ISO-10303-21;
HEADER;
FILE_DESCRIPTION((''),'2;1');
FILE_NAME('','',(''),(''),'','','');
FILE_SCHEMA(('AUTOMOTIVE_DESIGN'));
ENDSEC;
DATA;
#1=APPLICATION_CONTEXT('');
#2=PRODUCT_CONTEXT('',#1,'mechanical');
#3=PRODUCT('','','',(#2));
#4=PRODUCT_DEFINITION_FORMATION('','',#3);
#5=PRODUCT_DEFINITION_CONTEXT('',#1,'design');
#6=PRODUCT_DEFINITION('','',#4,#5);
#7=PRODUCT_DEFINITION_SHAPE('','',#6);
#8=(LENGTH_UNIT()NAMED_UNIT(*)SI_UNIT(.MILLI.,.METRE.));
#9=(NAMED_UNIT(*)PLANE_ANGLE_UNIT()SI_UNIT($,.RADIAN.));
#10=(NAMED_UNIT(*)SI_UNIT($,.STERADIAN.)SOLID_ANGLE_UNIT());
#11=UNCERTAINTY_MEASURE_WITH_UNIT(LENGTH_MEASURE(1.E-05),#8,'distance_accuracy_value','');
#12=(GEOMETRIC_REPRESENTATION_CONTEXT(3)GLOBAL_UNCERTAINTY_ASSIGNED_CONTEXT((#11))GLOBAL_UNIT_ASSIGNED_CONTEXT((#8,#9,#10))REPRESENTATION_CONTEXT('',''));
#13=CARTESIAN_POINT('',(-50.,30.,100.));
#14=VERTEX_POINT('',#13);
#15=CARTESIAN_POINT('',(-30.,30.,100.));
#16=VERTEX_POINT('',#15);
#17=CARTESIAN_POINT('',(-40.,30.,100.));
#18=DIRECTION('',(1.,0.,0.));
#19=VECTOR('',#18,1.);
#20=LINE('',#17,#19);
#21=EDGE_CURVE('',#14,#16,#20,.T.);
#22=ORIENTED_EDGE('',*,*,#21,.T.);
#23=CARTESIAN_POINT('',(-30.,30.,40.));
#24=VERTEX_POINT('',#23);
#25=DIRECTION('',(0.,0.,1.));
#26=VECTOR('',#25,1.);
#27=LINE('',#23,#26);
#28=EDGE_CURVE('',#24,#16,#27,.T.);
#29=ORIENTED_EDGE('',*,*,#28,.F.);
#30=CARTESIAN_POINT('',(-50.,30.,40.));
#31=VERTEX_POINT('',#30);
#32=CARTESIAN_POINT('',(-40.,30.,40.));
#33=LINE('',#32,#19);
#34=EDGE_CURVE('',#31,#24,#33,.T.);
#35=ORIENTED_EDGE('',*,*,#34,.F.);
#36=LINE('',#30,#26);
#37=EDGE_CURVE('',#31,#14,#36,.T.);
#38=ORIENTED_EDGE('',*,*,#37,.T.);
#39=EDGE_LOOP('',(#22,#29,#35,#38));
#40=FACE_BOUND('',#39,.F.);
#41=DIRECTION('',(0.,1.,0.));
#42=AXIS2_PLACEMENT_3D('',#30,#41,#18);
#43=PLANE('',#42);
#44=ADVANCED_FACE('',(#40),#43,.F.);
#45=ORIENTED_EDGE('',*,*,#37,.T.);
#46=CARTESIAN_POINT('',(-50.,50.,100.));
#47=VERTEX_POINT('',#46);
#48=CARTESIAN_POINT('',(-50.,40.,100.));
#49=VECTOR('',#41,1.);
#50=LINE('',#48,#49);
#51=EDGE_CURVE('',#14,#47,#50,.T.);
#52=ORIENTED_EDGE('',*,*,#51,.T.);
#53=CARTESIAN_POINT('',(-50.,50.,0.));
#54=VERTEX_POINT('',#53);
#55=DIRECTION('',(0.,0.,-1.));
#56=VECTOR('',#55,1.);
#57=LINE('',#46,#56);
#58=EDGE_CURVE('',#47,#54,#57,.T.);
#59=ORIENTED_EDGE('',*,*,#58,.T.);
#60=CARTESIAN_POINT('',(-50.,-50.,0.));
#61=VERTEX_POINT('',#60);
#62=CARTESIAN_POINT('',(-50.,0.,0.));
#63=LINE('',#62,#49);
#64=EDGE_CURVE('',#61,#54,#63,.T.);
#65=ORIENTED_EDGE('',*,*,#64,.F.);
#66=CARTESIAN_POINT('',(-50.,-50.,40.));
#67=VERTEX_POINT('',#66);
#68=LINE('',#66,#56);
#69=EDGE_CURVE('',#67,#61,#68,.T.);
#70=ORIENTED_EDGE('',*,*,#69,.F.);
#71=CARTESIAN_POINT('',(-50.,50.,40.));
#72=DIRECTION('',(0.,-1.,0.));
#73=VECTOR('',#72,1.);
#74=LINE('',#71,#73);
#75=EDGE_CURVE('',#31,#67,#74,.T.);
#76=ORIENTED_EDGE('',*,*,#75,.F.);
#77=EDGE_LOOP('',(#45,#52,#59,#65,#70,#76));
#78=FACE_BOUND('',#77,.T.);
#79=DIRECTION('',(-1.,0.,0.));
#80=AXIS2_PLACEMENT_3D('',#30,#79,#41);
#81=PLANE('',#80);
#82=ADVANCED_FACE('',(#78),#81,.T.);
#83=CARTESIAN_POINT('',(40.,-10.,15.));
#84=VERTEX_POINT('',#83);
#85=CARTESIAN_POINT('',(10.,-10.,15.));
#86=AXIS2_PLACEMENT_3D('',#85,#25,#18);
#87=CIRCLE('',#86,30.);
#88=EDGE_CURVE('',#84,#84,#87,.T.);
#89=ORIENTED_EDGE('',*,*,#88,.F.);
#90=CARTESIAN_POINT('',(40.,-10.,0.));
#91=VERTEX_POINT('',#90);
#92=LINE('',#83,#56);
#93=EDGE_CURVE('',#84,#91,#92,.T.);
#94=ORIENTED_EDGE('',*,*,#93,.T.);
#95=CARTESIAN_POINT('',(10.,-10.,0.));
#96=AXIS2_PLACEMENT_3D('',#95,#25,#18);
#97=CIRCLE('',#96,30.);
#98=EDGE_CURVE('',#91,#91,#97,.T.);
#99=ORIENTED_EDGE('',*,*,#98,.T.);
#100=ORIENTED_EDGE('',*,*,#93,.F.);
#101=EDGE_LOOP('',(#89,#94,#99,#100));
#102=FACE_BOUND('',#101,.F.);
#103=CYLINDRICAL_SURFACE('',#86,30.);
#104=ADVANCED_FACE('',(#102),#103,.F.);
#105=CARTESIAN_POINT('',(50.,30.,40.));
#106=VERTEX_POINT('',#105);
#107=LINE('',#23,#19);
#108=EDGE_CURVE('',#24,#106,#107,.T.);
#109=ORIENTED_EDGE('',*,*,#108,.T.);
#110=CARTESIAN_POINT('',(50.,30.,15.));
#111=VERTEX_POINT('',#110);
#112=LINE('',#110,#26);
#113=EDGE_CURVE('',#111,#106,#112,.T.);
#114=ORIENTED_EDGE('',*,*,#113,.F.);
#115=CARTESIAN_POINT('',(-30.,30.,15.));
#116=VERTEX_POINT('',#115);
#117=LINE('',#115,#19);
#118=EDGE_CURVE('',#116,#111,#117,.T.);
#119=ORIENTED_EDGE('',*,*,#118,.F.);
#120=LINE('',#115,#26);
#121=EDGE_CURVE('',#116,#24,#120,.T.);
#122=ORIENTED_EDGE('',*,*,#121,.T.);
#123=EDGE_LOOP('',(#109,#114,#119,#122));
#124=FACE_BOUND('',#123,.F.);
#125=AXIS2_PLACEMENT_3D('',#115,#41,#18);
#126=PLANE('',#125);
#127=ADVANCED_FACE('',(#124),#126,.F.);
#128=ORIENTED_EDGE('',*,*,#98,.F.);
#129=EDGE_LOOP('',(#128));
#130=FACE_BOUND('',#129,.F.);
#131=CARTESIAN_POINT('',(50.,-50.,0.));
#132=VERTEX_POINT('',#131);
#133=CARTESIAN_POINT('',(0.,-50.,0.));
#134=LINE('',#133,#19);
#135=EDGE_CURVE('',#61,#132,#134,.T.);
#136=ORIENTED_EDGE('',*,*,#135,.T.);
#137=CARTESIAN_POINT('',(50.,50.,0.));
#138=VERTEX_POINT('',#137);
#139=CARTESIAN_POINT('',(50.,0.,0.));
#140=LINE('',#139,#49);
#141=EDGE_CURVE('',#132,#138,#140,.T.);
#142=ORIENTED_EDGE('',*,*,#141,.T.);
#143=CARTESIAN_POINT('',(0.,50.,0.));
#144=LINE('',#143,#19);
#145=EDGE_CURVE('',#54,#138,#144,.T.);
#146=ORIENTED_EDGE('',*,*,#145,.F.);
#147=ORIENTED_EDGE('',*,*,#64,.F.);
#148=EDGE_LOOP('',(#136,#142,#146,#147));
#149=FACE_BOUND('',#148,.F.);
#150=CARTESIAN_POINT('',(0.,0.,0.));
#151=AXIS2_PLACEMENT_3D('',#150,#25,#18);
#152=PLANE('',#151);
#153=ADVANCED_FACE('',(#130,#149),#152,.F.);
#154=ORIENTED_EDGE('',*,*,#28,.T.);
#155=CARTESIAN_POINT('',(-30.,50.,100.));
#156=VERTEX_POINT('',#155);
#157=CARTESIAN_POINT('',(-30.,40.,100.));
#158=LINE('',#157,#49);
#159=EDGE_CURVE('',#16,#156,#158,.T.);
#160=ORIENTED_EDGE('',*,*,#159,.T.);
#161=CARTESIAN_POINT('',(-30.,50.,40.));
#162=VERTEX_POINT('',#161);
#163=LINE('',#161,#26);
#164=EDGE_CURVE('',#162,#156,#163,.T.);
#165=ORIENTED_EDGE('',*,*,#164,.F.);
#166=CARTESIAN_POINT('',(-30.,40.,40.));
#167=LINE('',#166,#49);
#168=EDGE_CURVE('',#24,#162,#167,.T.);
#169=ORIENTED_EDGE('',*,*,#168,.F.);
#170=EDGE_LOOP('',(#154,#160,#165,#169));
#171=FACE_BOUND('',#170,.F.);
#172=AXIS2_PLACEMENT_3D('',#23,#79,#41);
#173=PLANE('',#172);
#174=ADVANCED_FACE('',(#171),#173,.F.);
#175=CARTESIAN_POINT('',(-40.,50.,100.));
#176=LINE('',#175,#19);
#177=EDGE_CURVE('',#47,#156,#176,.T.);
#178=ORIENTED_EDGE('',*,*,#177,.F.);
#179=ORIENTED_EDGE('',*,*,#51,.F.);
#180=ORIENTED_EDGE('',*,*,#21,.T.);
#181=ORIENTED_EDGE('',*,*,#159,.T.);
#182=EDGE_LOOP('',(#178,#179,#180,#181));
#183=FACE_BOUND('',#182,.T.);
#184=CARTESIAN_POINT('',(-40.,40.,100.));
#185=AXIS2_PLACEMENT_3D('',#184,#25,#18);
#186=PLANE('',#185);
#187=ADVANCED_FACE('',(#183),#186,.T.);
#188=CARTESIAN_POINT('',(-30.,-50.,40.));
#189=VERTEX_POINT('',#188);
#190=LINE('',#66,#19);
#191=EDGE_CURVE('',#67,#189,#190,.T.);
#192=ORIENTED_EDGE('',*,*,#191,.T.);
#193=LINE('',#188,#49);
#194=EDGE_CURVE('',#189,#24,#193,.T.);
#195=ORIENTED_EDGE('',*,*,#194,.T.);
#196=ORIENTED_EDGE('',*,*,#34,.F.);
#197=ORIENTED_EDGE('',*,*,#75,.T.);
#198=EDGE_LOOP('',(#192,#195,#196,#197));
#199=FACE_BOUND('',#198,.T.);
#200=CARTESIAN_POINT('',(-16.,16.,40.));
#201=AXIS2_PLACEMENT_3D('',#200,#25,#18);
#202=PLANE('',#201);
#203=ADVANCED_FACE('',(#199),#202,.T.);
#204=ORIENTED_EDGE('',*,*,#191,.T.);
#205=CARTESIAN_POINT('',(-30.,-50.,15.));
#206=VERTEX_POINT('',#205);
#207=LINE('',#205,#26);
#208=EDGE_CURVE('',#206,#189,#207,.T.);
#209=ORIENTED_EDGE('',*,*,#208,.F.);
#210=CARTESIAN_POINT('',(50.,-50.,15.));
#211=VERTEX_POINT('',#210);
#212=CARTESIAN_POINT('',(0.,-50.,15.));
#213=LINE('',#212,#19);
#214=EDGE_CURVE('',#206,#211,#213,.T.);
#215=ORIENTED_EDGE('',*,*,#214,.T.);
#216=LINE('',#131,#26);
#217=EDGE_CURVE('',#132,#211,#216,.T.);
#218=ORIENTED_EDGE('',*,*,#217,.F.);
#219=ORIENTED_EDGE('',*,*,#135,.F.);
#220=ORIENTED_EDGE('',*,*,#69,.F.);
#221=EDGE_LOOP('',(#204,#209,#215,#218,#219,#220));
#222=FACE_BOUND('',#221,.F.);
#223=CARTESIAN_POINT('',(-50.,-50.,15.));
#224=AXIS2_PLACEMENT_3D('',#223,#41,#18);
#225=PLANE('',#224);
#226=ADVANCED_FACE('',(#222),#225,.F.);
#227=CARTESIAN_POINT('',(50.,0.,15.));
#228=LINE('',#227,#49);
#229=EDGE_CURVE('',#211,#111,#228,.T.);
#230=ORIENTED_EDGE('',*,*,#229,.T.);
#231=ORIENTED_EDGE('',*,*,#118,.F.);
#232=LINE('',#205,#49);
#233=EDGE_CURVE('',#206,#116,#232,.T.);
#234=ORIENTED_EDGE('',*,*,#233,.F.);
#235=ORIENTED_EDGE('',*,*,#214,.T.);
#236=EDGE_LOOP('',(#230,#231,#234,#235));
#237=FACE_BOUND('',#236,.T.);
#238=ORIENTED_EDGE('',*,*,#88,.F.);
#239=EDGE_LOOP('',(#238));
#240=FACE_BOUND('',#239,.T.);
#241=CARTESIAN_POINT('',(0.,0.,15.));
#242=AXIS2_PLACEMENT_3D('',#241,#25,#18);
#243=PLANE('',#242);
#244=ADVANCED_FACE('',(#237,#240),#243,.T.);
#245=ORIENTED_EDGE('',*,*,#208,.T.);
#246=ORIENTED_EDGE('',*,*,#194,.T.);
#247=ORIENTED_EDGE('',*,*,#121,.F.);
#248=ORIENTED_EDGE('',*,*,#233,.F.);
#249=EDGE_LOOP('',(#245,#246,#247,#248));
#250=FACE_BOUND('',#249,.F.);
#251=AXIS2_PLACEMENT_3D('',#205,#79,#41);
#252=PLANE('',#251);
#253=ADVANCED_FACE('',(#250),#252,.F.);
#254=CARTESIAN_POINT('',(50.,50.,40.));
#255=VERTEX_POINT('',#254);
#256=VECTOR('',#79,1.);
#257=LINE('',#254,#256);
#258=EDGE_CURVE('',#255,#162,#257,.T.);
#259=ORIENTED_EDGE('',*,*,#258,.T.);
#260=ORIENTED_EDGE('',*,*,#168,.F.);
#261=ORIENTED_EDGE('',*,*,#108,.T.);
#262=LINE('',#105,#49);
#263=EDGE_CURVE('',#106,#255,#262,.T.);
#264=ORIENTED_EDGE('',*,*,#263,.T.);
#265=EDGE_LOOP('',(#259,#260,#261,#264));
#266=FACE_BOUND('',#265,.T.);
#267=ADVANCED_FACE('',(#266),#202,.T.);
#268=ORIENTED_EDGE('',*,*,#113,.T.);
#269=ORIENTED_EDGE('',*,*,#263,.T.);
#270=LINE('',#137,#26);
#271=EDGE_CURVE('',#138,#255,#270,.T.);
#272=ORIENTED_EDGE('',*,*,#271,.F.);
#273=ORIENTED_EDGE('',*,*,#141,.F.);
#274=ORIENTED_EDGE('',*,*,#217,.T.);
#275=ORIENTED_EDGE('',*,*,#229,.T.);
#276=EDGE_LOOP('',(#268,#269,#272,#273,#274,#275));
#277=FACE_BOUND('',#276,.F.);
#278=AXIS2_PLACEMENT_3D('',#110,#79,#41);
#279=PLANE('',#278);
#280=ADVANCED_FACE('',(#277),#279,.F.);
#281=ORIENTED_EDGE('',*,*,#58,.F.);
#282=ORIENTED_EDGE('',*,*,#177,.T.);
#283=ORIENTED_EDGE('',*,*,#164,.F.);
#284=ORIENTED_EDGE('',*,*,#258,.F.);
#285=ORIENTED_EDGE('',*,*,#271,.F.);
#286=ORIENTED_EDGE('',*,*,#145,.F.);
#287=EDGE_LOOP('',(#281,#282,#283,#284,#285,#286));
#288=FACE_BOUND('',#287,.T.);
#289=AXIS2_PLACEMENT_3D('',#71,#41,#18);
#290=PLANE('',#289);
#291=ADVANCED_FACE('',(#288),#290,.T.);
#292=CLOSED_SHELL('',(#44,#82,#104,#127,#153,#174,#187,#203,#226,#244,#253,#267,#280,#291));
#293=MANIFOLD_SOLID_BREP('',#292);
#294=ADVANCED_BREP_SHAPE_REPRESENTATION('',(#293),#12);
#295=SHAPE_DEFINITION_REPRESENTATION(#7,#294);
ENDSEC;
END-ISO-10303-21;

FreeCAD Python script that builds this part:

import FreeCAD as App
import Part
import Sketcher

V = App.Vector
Q = App.Units.Quantity

doc = App.newDocument("Part")
body = doc.addObject("PartDesign::Body", "Body")

sketch1 = body.newObject("Sketcher::SketchObject", "Sketch")
sketch1.AttachmentSupport = (doc.getObject("XY_Plane"), [""])
sketch1.MapMode = "FlatFace"
sketch1.addGeometry(Part.LineSegment(V(-50, 50, 0), V(-50, -50, 0)), False)
sketch1.addGeometry(Part.LineSegment(V(-50, -50, 0), V(50, -50, 0)), False)
sketch1.addGeometry(Part.LineSegment(V(50, -50, 0), V(50, 50, 0)), False)
sketch1.addGeometry(Part.LineSegment(V(50, 50, 0), V(-50, 50, 0)), False)
sketch1.addConstraint(Sketcher.Constraint("Coincident", 0, 2, 1, 1))
sketch1.addConstraint(Sketcher.Constraint("Coincident", 1, 2, 2, 1))
sketch1.addConstraint(Sketcher.Constraint("Coincident", 2, 2, 3, 1))
sketch1.addConstraint(Sketcher.Constraint("Coincident", 3, 2, 0, 1))
sketch1.addConstraint(Sketcher.Constraint("Vertical", 0))
sketch1.addConstraint(Sketcher.Constraint("Horizontal", 1))
sketch1.addConstraint(Sketcher.Constraint("Vertical", 2))
sketch1.addConstraint(Sketcher.Constraint("Horizontal", 3))
sketch1.addConstraint(Sketcher.Constraint("Symmetric", 0, 2, 2, 2, -1, 1))
sketch1.addConstraint(Sketcher.Constraint("Equal", 3, 0))
sketch1.addConstraint(Sketcher.Constraint("DistanceX", 1, 1, 1, 2, Q("100 mm")))
pad1 = body.newObject("PartDesign::Pad", "Pad")
pad1.Profile = sketch1
pad1.Length = 15

sketch2 = body.newObject("Sketcher::SketchObject", "Sketch001")
sketch2.AttachmentSupport = (doc.getObject("XY_Plane"), [""])
sketch2.MapMode = "FlatFace"
sketch2.AttachmentOffset = App.Placement(V(0, 0, 15), App.Rotation())
sketch2.addGeometry(Part.LineSegment(V(-30, 30, 0), V(50, 30, 0)), False)
sketch2.addGeometry(Part.LineSegment(V(50, 30, 0), V(50, 50, 0)), False)
sketch2.addGeometry(Part.LineSegment(V(50, 50, 0), V(-50, 50, 0)), False)
sketch2.addGeometry(Part.LineSegment(V(-50, 50, 0), V(-50, -50, 0)), False)
sketch2.addGeometry(Part.LineSegment(V(-50, -50, 0), V(-30, -50, 0)), False)
sketch2.addGeometry(Part.LineSegment(V(-30, -50, 0), V(-30, 30, 0)), False)
sketch2.addConstraint(Sketcher.Constraint("Coincident", 0, 2, 1, 1))
sketch2.addConstraint(Sketcher.Constraint("Coincident", 1, 2, 2, 1))
sketch2.addConstraint(Sketcher.Constraint("Coincident", 2, 2, 3, 1))
sketch2.addConstraint(Sketcher.Constraint("Coincident", 3, 2, 4, 1))
sketch2.addConstraint(Sketcher.Constraint("Coincident", 4, 2, 5, 1))
sketch2.addConstraint(Sketcher.Constraint("Coincident", 5, 2, 0, 1))
sketch2.addConstraint(Sketcher.Constraint("Horizontal", 0))
sketch2.addConstraint(Sketcher.Constraint("Vertical", 1))
sketch2.addConstraint(Sketcher.Constraint("Horizontal", 2))
sketch2.addConstraint(Sketcher.Constraint("Vertical", 3))
sketch2.addConstraint(Sketcher.Constraint("Horizontal", 4))
sketch2.addConstraint(Sketcher.Constraint("Vertical", 5))
sketch2.addConstraint(Sketcher.Constraint("Symmetric", 1, 2, 3, 2, -1, 1))
sketch2.addConstraint(Sketcher.Constraint("Equal", 4, 1))
sketch2.addConstraint(Sketcher.Constraint("Equal", 2, 3))
sketch2.addConstraint(Sketcher.Constraint("DistanceX", 0, 1, 0, 2, Q("80 mm")))
sketch2.addConstraint(Sketcher.Constraint("DistanceX", 2, 2, 2, 1, Q("100 mm")))
pad2 = body.newObject("PartDesign::Pad", "Pad001")
pad2.Profile = sketch2
pad2.Length = 25

sketch3 = body.newObject("Sketcher::SketchObject", "Sketch002")
sketch3.AttachmentSupport = (doc.getObject("XY_Plane"), [""])
sketch3.MapMode = "FlatFace"
sketch3.AttachmentOffset = App.Placement(V(0, 0, 15), App.Rotation())
sketch3.addGeometry(Part.Circle(V(10, -10, 0), V(0, 0, 1), 30), False)
sketch3.addConstraint(Sketcher.Constraint("Diameter", 0, Q("60 mm")))
sketch3.addConstraint(Sketcher.Constraint("DistanceX", -1, 1, 0, 3, Q("10 mm")))
sketch3.addConstraint(Sketcher.Constraint("DistanceY", 0, 3, -1, 1, Q("10 mm")))
pocket1 = body.newObject("PartDesign::Pocket", "Pocket")
pocket1.Profile = sketch3
pocket1.Type = "ThroughAll"

sketch4 = body.newObject("Sketcher::SketchObject", "Sketch003")
sketch4.AttachmentSupport = (doc.getObject("XY_Plane"), [""])
sketch4.MapMode = "FlatFace"
sketch4.AttachmentOffset = App.Placement(V(0, 0, 40), App.Rotation())
sketch4.addGeometry(Part.LineSegment(V(-50, 50, 0), V(-50, 30, 0)), False)
sketch4.addGeometry(Part.LineSegment(V(-50, 30, 0), V(-30, 30, 0)), False)
sketch4.addGeometry(Part.LineSegment(V(-30, 30, 0), V(-30, 50, 0)), False)
sketch4.addGeometry(Part.LineSegment(V(-30, 50, 0), V(-50, 50, 0)), False)
sketch4.addConstraint(Sketcher.Constraint("Coincident", 0, 2, 1, 1))
sketch4.addConstraint(Sketcher.Constraint("Coincident", 1, 2, 2, 1))
sketch4.addConstraint(Sketcher.Constraint("Coincident", 2, 2, 3, 1))
sketch4.addConstraint(Sketcher.Constraint("Coincident", 3, 2, 0, 1))
sketch4.addConstraint(Sketcher.Constraint("Vertical", 0))
sketch4.addConstraint(Sketcher.Constraint("Horizontal", 1))
sketch4.addConstraint(Sketcher.Constraint("Vertical", 2))
sketch4.addConstraint(Sketcher.Constraint("Horizontal", 3))
sketch4.addConstraint(Sketcher.Constraint("Equal", 3, 0))
sketch4.addConstraint(Sketcher.Constraint("DistanceX", 1, 1, 1, 2, Q("20 mm")))
sketch4.addConstraint(Sketcher.Constraint("DistanceX", 0, 2, -1, 1, Q("50 mm")))
sketch4.addConstraint(Sketcher.Constraint("DistanceY", -1, 1, 0, 2, Q("30 mm")))
pad3 = body.newObject("PartDesign::Pad", "Pad002")
pad3.Profile = sketch4
pad3.Length = 60

doc.recompute()
